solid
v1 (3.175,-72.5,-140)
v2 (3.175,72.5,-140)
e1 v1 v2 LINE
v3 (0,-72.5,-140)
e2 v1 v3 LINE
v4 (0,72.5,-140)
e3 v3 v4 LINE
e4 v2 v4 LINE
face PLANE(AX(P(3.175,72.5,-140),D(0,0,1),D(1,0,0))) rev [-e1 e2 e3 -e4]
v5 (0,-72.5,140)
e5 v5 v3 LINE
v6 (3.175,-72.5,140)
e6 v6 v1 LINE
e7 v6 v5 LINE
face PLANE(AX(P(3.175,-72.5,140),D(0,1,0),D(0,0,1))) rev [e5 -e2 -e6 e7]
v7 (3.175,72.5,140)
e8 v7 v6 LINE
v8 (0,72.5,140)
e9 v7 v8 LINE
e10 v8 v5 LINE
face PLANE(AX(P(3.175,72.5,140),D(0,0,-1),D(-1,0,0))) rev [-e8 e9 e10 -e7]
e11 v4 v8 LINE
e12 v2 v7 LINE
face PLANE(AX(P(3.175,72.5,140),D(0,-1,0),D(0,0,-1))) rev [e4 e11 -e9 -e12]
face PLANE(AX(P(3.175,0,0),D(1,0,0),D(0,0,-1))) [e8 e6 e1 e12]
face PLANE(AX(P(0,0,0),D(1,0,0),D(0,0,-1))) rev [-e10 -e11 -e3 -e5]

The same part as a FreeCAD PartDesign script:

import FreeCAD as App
import Part
import Sketcher

V = App.Vector
Q = App.Units.Quantity

doc = App.newDocument("Part")
body = doc.addObject("PartDesign::Body", "Body")

sketch1 = body.newObject("Sketcher::SketchObject", "Sketch")
sketch1.AttachmentSupport = (doc.getObject("YZ_Plane"), [""])
sketch1.MapMode = "FlatFace"
sketch1.addGeometry(Part.LineSegment(V(72, 140, 0), V(-72, 140, 0)), False)
sketch1.addGeometry(Part.LineSegment(V(-72, 140, 0), V(-72, -140, 0)), False)
sketch1.addGeometry(Part.LineSegment(V(-72, -140, 0), V(72, -140, 0)), False)
sketch1.addGeometry(Part.LineSegment(V(72, -140, 0), V(72, 140, 0)), False)
sketch1.addConstraint(Sketcher.Constraint("Coincident", 0, 2, 1, 1))
sketch1.addConstraint(Sketcher.Constraint("Coincident", 1, 2, 2, 1))
sketch1.addConstraint(Sketcher.Constraint("Coincident", 2, 2, 3, 1))
sketch1.addConstraint(Sketcher.Constraint("Coincident", 3, 2, 0, 1))
sketch1.addConstraint(Sketcher.Constraint("Horizontal", 0))
sketch1.addConstraint(Sketcher.Constraint("Vertical", 1))
sketch1.addConstraint(Sketcher.Constraint("Horizontal", 2))
sketch1.addConstraint(Sketcher.Constraint("Vertical", 3))
sketch1.addConstraint(Sketcher.Constraint("Symmetric", 0, 2, 2, 2, -1, 1))
sketch1.addConstraint(Sketcher.Constraint("DistanceX", 0, 2, 0, 1, Q("145 mm")))
sketch1.addConstraint(Sketcher.Constraint("DistanceY", 1, 2, 1, 1, Q("280 mm")))
pad1 = body.newObject("PartDesign::Pad", "Pad")
pad1.Profile = sketch1
pad1.Length = 3.175

doc.recompute()
